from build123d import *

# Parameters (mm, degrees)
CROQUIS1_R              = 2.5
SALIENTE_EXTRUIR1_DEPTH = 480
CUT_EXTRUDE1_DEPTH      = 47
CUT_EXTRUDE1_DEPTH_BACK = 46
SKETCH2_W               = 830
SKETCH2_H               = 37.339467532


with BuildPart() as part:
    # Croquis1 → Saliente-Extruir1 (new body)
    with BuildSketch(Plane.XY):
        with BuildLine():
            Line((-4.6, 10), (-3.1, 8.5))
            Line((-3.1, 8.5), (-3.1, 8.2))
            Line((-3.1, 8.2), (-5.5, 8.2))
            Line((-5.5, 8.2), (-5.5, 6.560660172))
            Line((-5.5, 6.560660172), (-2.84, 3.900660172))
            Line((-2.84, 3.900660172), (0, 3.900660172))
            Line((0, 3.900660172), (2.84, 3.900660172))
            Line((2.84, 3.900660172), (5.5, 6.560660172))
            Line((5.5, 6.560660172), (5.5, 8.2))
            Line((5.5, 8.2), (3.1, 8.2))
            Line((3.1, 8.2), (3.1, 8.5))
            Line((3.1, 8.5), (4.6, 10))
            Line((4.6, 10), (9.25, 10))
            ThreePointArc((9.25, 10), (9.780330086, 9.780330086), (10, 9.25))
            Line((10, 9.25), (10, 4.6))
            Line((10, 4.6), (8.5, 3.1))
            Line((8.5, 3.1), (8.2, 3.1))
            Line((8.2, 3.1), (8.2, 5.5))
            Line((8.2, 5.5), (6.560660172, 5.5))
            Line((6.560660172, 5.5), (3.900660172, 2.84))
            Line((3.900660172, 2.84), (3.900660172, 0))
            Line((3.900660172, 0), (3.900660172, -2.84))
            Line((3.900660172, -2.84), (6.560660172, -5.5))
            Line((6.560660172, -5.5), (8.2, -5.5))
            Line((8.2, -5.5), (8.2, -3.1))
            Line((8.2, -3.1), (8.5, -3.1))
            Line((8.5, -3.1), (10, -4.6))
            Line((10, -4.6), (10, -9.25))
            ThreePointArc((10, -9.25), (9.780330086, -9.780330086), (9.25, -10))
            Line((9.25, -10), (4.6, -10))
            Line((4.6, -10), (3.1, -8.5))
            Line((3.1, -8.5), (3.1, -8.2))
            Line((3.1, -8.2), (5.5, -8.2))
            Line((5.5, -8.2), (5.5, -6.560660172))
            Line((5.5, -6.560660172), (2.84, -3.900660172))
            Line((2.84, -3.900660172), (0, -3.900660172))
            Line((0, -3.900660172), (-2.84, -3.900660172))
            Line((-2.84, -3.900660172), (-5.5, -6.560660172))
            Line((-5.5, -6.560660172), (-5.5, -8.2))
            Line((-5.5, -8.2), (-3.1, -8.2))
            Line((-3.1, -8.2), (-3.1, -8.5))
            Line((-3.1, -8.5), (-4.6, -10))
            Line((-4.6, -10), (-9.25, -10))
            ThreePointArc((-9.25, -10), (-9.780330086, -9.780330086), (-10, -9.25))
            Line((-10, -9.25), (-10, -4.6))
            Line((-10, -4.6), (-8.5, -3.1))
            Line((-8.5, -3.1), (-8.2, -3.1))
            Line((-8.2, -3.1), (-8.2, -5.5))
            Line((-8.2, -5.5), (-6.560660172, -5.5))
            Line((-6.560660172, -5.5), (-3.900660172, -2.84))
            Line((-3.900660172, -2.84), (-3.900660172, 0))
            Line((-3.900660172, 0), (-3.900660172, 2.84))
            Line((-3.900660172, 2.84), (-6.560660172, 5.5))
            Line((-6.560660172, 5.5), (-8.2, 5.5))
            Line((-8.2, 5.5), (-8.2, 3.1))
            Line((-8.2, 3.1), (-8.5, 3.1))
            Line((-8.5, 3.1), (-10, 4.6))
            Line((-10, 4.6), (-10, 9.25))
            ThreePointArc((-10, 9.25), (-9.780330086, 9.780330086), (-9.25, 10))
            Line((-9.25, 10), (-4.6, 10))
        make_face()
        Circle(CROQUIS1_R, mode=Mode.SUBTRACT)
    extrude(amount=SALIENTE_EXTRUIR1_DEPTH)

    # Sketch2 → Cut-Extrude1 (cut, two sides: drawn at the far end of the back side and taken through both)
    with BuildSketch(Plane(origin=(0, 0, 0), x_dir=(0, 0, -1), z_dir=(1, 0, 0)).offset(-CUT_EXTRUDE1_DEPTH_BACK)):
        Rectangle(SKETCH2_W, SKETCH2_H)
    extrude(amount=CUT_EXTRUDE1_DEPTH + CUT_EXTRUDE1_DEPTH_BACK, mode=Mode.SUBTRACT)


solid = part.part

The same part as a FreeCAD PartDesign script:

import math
import FreeCAD as App
import Part
import Sketcher

V = App.Vector


def add_polygon(sketch, points):
    """Adds a closed chain of lines whose ends are joined by coincident constraints."""
    first, n = sketch.GeometryCount, len(points)
    for a, b in zip(points, points[1:] + points[:1]):
        sketch.addGeometry(Part.LineSegment(App.Vector(*a, 0), App.Vector(*b, 0)), False)
    for i in range(n):
        sketch.addConstraint(Sketcher.Constraint("Coincident", first + i, 2, first + (i + 1) % n, 1))

doc = App.newDocument("Part")
body = doc.addObject("PartDesign::Body", "Body")

sketch1 = body.newObject("Sketcher::SketchObject", "Sketch")
sketch1.AttachmentSupport = (doc.getObject("XY_Plane"), [""])
sketch1.MapMode = "FlatFace"
sketch1.addGeometry([
    Part.LineSegment(V(-3.1, 8.5, 0), V(-4.6, 10, 0)),
    Part.LineSegment(V(-4.6, 10, 0), V(-9.25, 10, 0)),
    Part.ArcOfCircle(Part.Circle(V(-9.25, 9.25, 0), V(0, 0, 1), 0.75), math.radians(90), math.radians(180)),
    Part.LineSegment(V(-10, 9.25, 0), V(-10, 4.6, 0)),
    Part.LineSegment(V(-10, 4.6, 0), V(-8.5, 3.1, 0)),
    Part.LineSegment(V(-8.5, 3.1, 0), V(-8.2, 3.1, 0)),
    Part.LineSegment(V(-8.2, 3.1, 0), V(-8.2, 5.5, 0)),
    Part.LineSegment(V(-8.2, 5.5, 0), V(-6.56066, 5.5, 0)),
    Part.LineSegment(V(-6.56066, 5.5, 0), V(-3.90066, 2.84, 0)),
    Part.LineSegment(V(-3.90066, 2.84, 0), V(-3.90066, -2.84, 0)),
    Part.LineSegment(V(-3.90066, -2.84, 0), V(-6.56066, -5.5, 0)),
    Part.LineSegment(V(-6.56066, -5.5, 0), V(-8.2, -5.5, 0)),
    Part.LineSegment(V(-8.2, -5.5, 0), V(-8.2, -3.1, 0)),
    Part.LineSegment(V(-8.2, -3.1, 0), V(-8.5, -3.1, 0)),
    Part.LineSegment(V(-8.5, -3.1, 0), V(-10, -4.6, 0)),
    Part.LineSegment(V(-10, -4.6, 0), V(-10, -9.25, 0)),
    Part.ArcOfCircle(Part.Circle(V(-9.25, -9.25, 0), V(0, 0, 1), 0.75), math.radians(180), math.radians(270)),
    Part.LineSegment(V(-9.25, -10, 0), V(-4.6, -10, 0)),
    Part.LineSegment(V(-4.6, -10, 0), V(-3.1, -8.5, 0)),
    Part.LineSegment(V(-3.1, -8.5, 0), V(-3.1, -8.2, 0)),
    Part.LineSegment(V(-3.1, -8.2, 0), V(-5.5, -8.2, 0)),
    Part.LineSegment(V(-5.5, -8.2, 0), V(-5.5, -6.56066, 0)),
    Part.LineSegment(V(-5.5, -6.56066, 0), V(-2.84, -3.90066, 0)),
    Part.LineSegment(V(-2.84, -3.90066, 0), V(2.84, -3.90066, 0)),
    Part.LineSegment(V(2.84, -3.90066, 0), V(5.5, -6.56066, 0)),
    Part.LineSegment(V(5.5, -6.56066, 0), V(5.5, -8.2, 0)),
    Part.LineSegment(V(5.5, -8.2, 0), V(3.1, -8.2, 0)),
    Part.LineSegment(V(3.1, -8.2, 0), V(3.1, -8.5, 0)),
    Part.LineSegment(V(3.1, -8.5, 0), V(4.6, -10, 0)),
    Part.LineSegment(V(4.6, -10, 0), V(9.25, -10, 0)),
    Part.ArcOfCircle(Part.Circle(V(9.25, -9.25, 0), V(0, 0, 1), 0.75), math.radians(-90), math.radians(0)),
    Part.LineSegment(V(10, -9.25, 0), V(10, -4.6, 0)),
    Part.LineSegment(V(10, -4.6, 0), V(8.5, -3.1, 0)),
    Part.LineSegment(V(8.5, -3.1, 0), V(8.2, -3.1, 0)),
    Part.LineSegment(V(8.2, -3.1, 0), V(8.2, -5.5, 0)),
    Part.LineSegment(V(8.2, -5.5, 0), V(6.56066, -5.5, 0)),
    Part.LineSegment(V(6.56066, -5.5, 0), V(3.90066, -2.84, 0)),
    Part.LineSegment(V(3.90066, -2.84, 0), V(3.90066, 2.84, 0)),
    Part.LineSegment(V(3.90066, 2.84, 0), V(6.56066, 5.5, 0)),
    Part.LineSegment(V(6.56066, 5.5, 0), V(8.2, 5.5, 0)),
    Part.LineSegment(V(8.2, 5.5, 0), V(8.2, 3.1, 0)),
    Part.LineSegment(V(8.2, 3.1, 0), V(8.5, 3.1, 0)),
    Part.LineSegment(V(8.5, 3.1, 0), V(10, 4.6, 0)),
    Part.LineSegment(V(10, 4.6, 0), V(10, 9.25, 0)),
    Part.ArcOfCircle(Part.Circle(V(9.25, 9.25, 0), V(0, 0, 1), 0.75), math.radians(0), math.radians(90)),
    Part.LineSegment(V(9.25, 10, 0), V(4.6, 10, 0)),
    Part.LineSegment(V(4.6, 10, 0), V(3.1, 8.5, 0)),
    Part.LineSegment(V(3.1, 8.5, 0), V(3.1, 8.2, 0)),
    Part.LineSegment(V(3.1, 8.2, 0), V(5.5, 8.2, 0)),
    Part.LineSegment(V(5.5, 8.2, 0), V(5.5, 6.56066, 0)),
    Part.LineSegment(V(5.5, 6.56066, 0), V(2.84, 3.90066, 0)),
    Part.LineSegment(V(2.84, 3.90066, 0), V(-2.84, 3.90066, 0)),
    Part.LineSegment(V(-2.84, 3.90066, 0), V(-5.5, 6.56066, 0)),
    Part.LineSegment(V(-5.5, 6.56066, 0), V(-5.5, 8.2, 0)),
    Part.LineSegment(V(-5.5, 8.2, 0), V(-3.1, 8.2, 0)),
    Part.LineSegment(V(-3.1, 8.2, 0), V(-3.1, 8.5, 0)),
    Part.Circle(V(0, 0, 0), V(0, 0, 1), 2.5),
], False)
sketch1.addConstraint([
    Sketcher.Constraint("Coincident", 0, 2, 1, 1),
    Sketcher.Constraint("Tangent", 1, 2, 2, 1),
    Sketcher.Constraint("Tangent", 2, 2, 3, 1),
    Sketcher.Constraint("Coincident", 3, 2, 4, 1),
    Sketcher.Constraint("Coincident", 4, 2, 5, 1),
    Sketcher.Constraint("Coincident", 5, 2, 6, 1),
    Sketcher.Constraint("Coincident", 6, 2, 7, 1),
    Sketcher.Constraint("Coincident", 7, 2, 8, 1),
    Sketcher.Constraint("Coincident", 8, 2, 9, 1),
    Sketcher.Constraint("Coincident", 9, 2, 10, 1),
    Sketcher.Constraint("Coincident", 10, 2, 11, 1),
    Sketcher.Constraint("Coincident", 11, 2, 12, 1),
    Sketcher.Constraint("Coincident", 12, 2, 13, 1),
    Sketcher.Constraint("Coincident", 13, 2, 14, 1),
    Sketcher.Constraint("Coincident", 14, 2, 15, 1),
    Sketcher.Constraint("Tangent", 15, 2, 16, 1),
    Sketcher.Constraint("Tangent", 16, 2, 17, 1),
    Sketcher.Constraint("Coincident", 17, 2, 18, 1),
    Sketcher.Constraint("Coincident", 18, 2, 19, 1),
    Sketcher.Constraint("Coincident", 19, 2, 20, 1),
    Sketcher.Constraint("Coincident", 20, 2, 21, 1),
    Sketcher.Constraint("Coincident", 21, 2, 22, 1),
    Sketcher.Constraint("Coincident", 22, 2, 23, 1),
    Sketcher.Constraint("Coincident", 23, 2, 24, 1),
    Sketcher.Constraint("Coincident", 24, 2, 25, 1),
    Sketcher.Constraint("Coincident", 25, 2, 26, 1),
    Sketcher.Constraint("Coincident", 26, 2, 27, 1),
    Sketcher.Constraint("Coincident", 27, 2, 28, 1),
    Sketcher.Constraint("Coincident", 28, 2, 29, 1),
    Sketcher.Constraint("Tangent", 29, 2, 30, 1),
    Sketcher.Constraint("Tangent", 30, 2, 31, 1),
    Sketcher.Constraint("Coincident", 31, 2, 32, 1),
    Sketcher.Constraint("Coincident", 32, 2, 33, 1),
    Sketcher.Constraint("Coincident", 33, 2, 34, 1),
    Sketcher.Constraint("Coincident", 34, 2, 35, 1),
    Sketcher.Constraint("Coincident", 35, 2, 36, 1),
    Sketcher.Constraint("Coincident", 36, 2, 37, 1),
    Sketcher.Constraint("Coincident", 37, 2, 38, 1),
    Sketcher.Constraint("Coincident", 38, 2, 39, 1),
    Sketcher.Constraint("Coincident", 39, 2, 40, 1),
    Sketcher.Constraint("Coincident", 40, 2, 41, 1),
    Sketcher.Constraint("Coincident", 41, 2, 42, 1),
    Sketcher.Constraint("Coincident", 42, 2, 43, 1),
    Sketcher.Constraint("Tangent", 43, 2, 44, 1),
    Sketcher.Constraint("Tangent", 44, 2, 45, 1),
    Sketcher.Constraint("Coincident", 45, 2, 46, 1),
    Sketcher.Constraint("Coincident", 46, 2, 47, 1),
    Sketcher.Constraint("Coincident", 47, 2, 48, 1),
    Sketcher.Constraint("Coincident", 48, 2, 49, 1),
    Sketcher.Constraint("Coincident", 49, 2, 50, 1),
    Sketcher.Constraint("Coincident", 50, 2, 51, 1),
    Sketcher.Constraint("Coincident", 51, 2, 52, 1),
    Sketcher.Constraint("Coincident", 52, 2, 53, 1),
    Sketcher.Constraint("Coincident", 53, 2, 54, 1),
    Sketcher.Constraint("Coincident", 54, 2, 55, 1),
    Sketcher.Constraint("Coincident", 55, 2, 0, 1),
    Sketcher.Constraint("Horizontal", 1),
    Sketcher.Constraint("Vertical", 3),
    Sketcher.Constraint("Horizontal", 5),
    Sketcher.Constraint("Vertical", 6),
    Sketcher.Constraint("Horizontal", 7),
    Sketcher.Constraint("Vertical", 9),
    Sketcher.Constraint("Horizontal", 11),
    Sketcher.Constraint("Vertical", 12),
    Sketcher.Constraint("Horizontal", 13),
    Sketcher.Constraint("Vertical", 15),
    Sketcher.Constraint("Horizontal", 17),
    Sketcher.Constraint("Vertical", 19),
    Sketcher.Constraint("Horizontal", 20),
    Sketcher.Constraint("Vertical", 21),
    Sketcher.Constraint("Horizontal", 23),
    Sketcher.Constraint("Vertical", 25),
    Sketcher.Constraint("Horizontal", 26),
    Sketcher.Constraint("Vertical", 27),
    Sketcher.Constraint("Horizontal", 29),
    Sketcher.Constraint("Vertical", 31),
    Sketcher.Constraint("Horizontal", 33),
    Sketcher.Constraint("Vertical", 34),
    Sketcher.Constraint("Horizontal", 35),
    Sketcher.Constraint("Vertical", 37),
    Sketcher.Constraint("Horizontal", 39),
    Sketcher.Constraint("Vertical", 40),
    Sketcher.Constraint("Horizontal", 41),
    Sketcher.Constraint("Vertical", 43),
    Sketcher.Constraint("Horizontal", 45),
    Sketcher.Constraint("Vertical", 47),
    Sketcher.Constraint("Horizontal", 48),
    Sketcher.Constraint("Vertical", 49),
    Sketcher.Constraint("Horizontal", 51),
    Sketcher.Constraint("Vertical", 53),
    Sketcher.Constraint("Horizontal", 54),
    Sketcher.Constraint("Vertical", 55),
    Sketcher.Constraint("Coincident", 56, 3, -1, 1),
    Sketcher.Constraint("Equal", 2, 16),
    Sketcher.Constraint("Equal", 16, 30),
    Sketcher.Constraint("Equal", 30, 44),
    Sketcher.Constraint("Symmetric", 2, 3, 30, 3, -1, 1),
    Sketcher.Constraint("Symmetric", 16, 3, 44, 3, -1, 1),
    Sketcher.Constraint("Symmetric", 4, 2, 32, 2, -1, 1),
    Sketcher.Constraint("Symmetric", 6, 2, 34, 2, -1, 1),
    Sketcher.Constraint("Symmetric", 8, 2, 36, 2, -1, 1),
    Sketcher.Constraint("Symmetric", 10, 2, 38, 2, -1, 1),
    Sketcher.Constraint("Symmetric", 12, 2, 40, 2, -1, 1),
    Sketcher.Constraint("Symmetric", 18, 2, 46, 2, -1, 1),
    Sketcher.Constraint("Symmetric", 20, 2, 48, 2, -1, 1),
    Sketcher.Constraint("Symmetric", 22, 2, 50, 2, -1, 1),
    Sketcher.Constraint("Symmetric", 24, 2, 52, 2, -1, 1),
    Sketcher.Constraint("Symmetric", 26, 2, 54, 2, -1, 1),
    Sketcher.Constraint("Symmetric", 16, 3, 30, 3, -2),
    Sketcher.Constraint("Symmetric", 21, 2, 24, 2, -2),
    Sketcher.Constraint("Symmetric", 19, 2, 26, 2, -2),
    Sketcher.Constraint("Symmetric", 13, 2, 32, 2, -2),
    Sketcher.Constraint("Symmetric", 11, 2, 34, 2, -2),
    Sketcher.Constraint("Parallel", 0, 4),
    Sketcher.Constraint("Parallel", 4, 8),
    Sketcher.Constraint("Perpendicular", 8, 10),
    Sketcher.Constraint("Parallel", 10, 14),
    Sketcher.Constraint("Parallel", 14, 18),
    Sketcher.Constraint("Parallel", 18, 22),
    Sketcher.Constraint("Perpendicular", 22, 24),
    Sketcher.Constraint("Parallel", 24, 28),
    Sketcher.Constraint("Parallel", 28, 32),
    Sketcher.Constraint("Parallel", 32, 36),
    Sketcher.Constraint("Perpendicular", 36, 38),
    Sketcher.Constraint("Parallel", 38, 42),
    Sketcher.Constraint("Parallel", 42, 46),
    Sketcher.Constraint("Parallel", 46, 50),
    Sketcher.Constraint("Perpendicular", 50, 52),
    Sketcher.Constraint("Horizontal", 18, 2, 27, 2),
    Sketcher.Constraint("Horizontal", 14, 2, 31, 2),
    Sketcher.Constraint("Horizontal", 9, 2, 36, 2),
    Sketcher.Constraint("Horizontal", 3, 2, 42, 2),
    Sketcher.Constraint("Horizontal", 46, 2, 55, 2),
    Sketcher.Constraint("Equal", 45, 3),
    Sketcher.Constraint("Equal", 54, 6),
    Sketcher.Constraint("Equal", 51, 9),
    Sketcher.Constraint("Equal", 41, 19),
    Sketcher.Constraint("Equal", 39, 21),
    Sketcher.Constraint("Equal", 0, 4),
    Sketcher.Constraint("Equal", 10, 22),
    Sketcher.Constraint("Diameter", 56, 5.0),
    Sketcher.Constraint("Radius", 2, 0.75),
    Sketcher.Constraint("DistanceX", 5, 1, 5, 2, 0.3),
    Sketcher.Constraint("DistanceX", 20, 2, 20, 1, 2.4),
    Sketcher.Constraint("DistanceY", -1, 1, 0, 2, 10.0),
    Sketcher.Constraint("DistanceX", 1, 2, 1, 1, 4.65),
    Sketcher.Constraint("DistanceX", 23, 1, 23, 2, 5.68),
    Sketcher.Constraint("DistanceX", 4, 2, -1, 1, 8.5),
    Sketcher.Constraint("DistanceX", 7, 1, 7, 2, 1.63934),
])
pad1 = body.newObject("PartDesign::Pad", "Pad")
pad1.Profile = sketch1
pad1.Length = 480

sketch2 = body.newObject("Sketcher::SketchObject", "Sketch001")
sketch2.AttachmentSupport = (doc.getObject("YZ_Plane"), [""])
sketch2.MapMode = "FlatFace"
add_polygon(sketch2, [(18.669734, 415), (-18.669734, 415), (-18.669734, -415), (18.669734, -415)])
sketch2.addConstraint([
    Sketcher.Constraint("Horizontal", 0),
    Sketcher.Constraint("Vertical", 1),
    Sketcher.Constraint("Horizontal", 2),
    Sketcher.Constraint("Vertical", 3),
    Sketcher.Constraint("Symmetric", 0, 2, 2, 2, -1, 1),
    Sketcher.Constraint("DistanceY", 1, 2, 1, 1, 830.0),
    Sketcher.Constraint("DistanceX", 0, 2, 0, 1, 37.339468),
])
pocket1 = body.newObject("PartDesign::Pocket", "Pocket")
pocket1.Profile = sketch2
pocket1.Type = "ThroughAll"
pocket1.Midplane = True

doc.recompute()
